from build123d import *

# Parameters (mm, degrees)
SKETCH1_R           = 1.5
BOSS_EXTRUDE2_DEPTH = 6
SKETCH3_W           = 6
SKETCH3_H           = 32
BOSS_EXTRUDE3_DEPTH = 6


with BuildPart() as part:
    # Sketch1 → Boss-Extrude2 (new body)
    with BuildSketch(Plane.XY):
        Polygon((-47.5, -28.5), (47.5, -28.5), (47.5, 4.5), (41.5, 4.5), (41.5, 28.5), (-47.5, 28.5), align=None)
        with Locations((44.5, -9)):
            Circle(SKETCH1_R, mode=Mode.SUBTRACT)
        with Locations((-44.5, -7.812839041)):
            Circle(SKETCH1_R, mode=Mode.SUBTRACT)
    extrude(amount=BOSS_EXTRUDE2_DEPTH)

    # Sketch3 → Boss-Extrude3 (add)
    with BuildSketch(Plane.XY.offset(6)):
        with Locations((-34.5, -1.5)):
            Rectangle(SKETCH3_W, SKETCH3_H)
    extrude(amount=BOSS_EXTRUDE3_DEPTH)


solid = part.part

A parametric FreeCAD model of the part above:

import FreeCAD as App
import Part
import Sketcher
from FreeCAD import Vector


def add_polygon(sketch, points):
    """Adds a closed chain of lines whose ends are joined by coincident constraints."""
    first, n = sketch.GeometryCount, len(points)
    for a, b in zip(points, points[1:] + points[:1]):
        sketch.addGeometry(Part.LineSegment(App.Vector(*a, 0), App.Vector(*b, 0)), False)
    for i in range(n):
        sketch.addConstraint(Sketcher.Constraint("Coincident", first + i, 2, first + (i + 1) % n, 1))

doc = App.newDocument("Part")
body = doc.addObject("PartDesign::Body", "Body")

sketch1 = body.newObject("Sketcher::SketchObject", "Sketch")
sketch1.AttachmentSupport = (doc.getObject("XY_Plane"), [""])
sketch1.MapMode = "FlatFace"
add_polygon(sketch1, [(-47.5, -28.5), (47.5, -28.5), (47.5, 4.5), (41.5, 4.5), (41.5, 28.5), (-47.5, 28.5)])
sketch1.addGeometry(Part.Circle(Vector(44.5, -9, 0), Vector(0, 0, 1), 1.5), False)
sketch1.addGeometry(Part.Circle(Vector(-44.5, -7.8, 0), Vector(0, 0, 1), 1.5), False)
sketch1.addConstraint(Sketcher.Constraint("Horizontal", 0))
sketch1.addConstraint(Sketcher.Constraint("Vertical", 1))
sketch1.addConstraint(Sketcher.Constraint("Horizontal", 2))
sketch1.addConstraint(Sketcher.Constraint("Vertical", 3))
sketch1.addConstraint(Sketcher.Constraint("Horizontal", 4))
sketch1.addConstraint(Sketcher.Constraint("Vertical", 5))
sketch1.addConstraint(Sketcher.Constraint("Equal", 6, 7))
sketch1.addConstraint(Sketcher.Constraint("Symmetric", 0, 2, 4, 2, -1, 1))
sketch1.addConstraint(Sketcher.Constraint("Diameter", 6, 3.0))
sketch1.addConstraint(Sketcher.Constraint("DistanceX", 0, 1, 0, 2, 95.0))
sketch1.addConstraint(Sketcher.Constraint("DistanceX", 2, 2, 2, 1, 6.0))
sketch1.addConstraint(Sketcher.Constraint("DistanceY", 1, 1, 1, 2, 33.0))
sketch1.addConstraint(Sketcher.Constraint("DistanceY", 3, 1, 3, 2, 24.0))
sketch1.addConstraint(Sketcher.Constraint("DistanceY", 6, 3, -1, 1, 9.0))
sketch1.addConstraint(Sketcher.Constraint("DistanceX", 7, 3, 6, 3, 89.0))
sketch1.addConstraint(Sketcher.Constraint("DistanceX", 6, 3, 0, 2, 3.0))
sketch1.addConstraint(Sketcher.Constraint("DistanceY", 7, 3, -1, 1, 7.812839))
pad1 = body.newObject("PartDesign::Pad", "Pad")
pad1.Profile = sketch1
pad1.Length = 6

sketch2 = body.newObject("Sketcher::SketchObject", "Sketch001")
sketch2.AttachmentSupport = (doc.getObject("XY_Plane"), [""])
sketch2.MapMode = "FlatFace"
sketch2.AttachmentOffset = App.Placement(Vector(0, 0, 6), App.Rotation())
add_polygon(sketch2, [(-38, 14), (-38, -18), (-32, -18), (-32, 14)])
sketch2.addConstraint(Sketcher.Constraint("Vertical", 0))
sketch2.addConstraint(Sketcher.Constraint("Horizontal", 1))
sketch2.addConstraint(Sketcher.Constraint("Vertical", 2))
sketch2.addConstraint(Sketcher.Constraint("Horizontal", 3))
sketch2.addConstraint(Sketcher.Constraint("DistanceX", 1, 1, 1, 2, 6.0))
sketch2.addConstraint(Sketcher.Constraint("DistanceY", 0, 2, 0, 1, 32.0))
sketch2.addConstraint(Sketcher.Constraint("DistanceX", 0, 2, -1, 1, 37.5))
sketch2.addConstraint(Sketcher.Constraint("DistanceY", 0, 2, -1, 1, 17.5))
pad2 = body.newObject("PartDesign::Pad", "Pad001")
pad2.Profile = sketch2
pad2.Length = 6

doc.recompute()
